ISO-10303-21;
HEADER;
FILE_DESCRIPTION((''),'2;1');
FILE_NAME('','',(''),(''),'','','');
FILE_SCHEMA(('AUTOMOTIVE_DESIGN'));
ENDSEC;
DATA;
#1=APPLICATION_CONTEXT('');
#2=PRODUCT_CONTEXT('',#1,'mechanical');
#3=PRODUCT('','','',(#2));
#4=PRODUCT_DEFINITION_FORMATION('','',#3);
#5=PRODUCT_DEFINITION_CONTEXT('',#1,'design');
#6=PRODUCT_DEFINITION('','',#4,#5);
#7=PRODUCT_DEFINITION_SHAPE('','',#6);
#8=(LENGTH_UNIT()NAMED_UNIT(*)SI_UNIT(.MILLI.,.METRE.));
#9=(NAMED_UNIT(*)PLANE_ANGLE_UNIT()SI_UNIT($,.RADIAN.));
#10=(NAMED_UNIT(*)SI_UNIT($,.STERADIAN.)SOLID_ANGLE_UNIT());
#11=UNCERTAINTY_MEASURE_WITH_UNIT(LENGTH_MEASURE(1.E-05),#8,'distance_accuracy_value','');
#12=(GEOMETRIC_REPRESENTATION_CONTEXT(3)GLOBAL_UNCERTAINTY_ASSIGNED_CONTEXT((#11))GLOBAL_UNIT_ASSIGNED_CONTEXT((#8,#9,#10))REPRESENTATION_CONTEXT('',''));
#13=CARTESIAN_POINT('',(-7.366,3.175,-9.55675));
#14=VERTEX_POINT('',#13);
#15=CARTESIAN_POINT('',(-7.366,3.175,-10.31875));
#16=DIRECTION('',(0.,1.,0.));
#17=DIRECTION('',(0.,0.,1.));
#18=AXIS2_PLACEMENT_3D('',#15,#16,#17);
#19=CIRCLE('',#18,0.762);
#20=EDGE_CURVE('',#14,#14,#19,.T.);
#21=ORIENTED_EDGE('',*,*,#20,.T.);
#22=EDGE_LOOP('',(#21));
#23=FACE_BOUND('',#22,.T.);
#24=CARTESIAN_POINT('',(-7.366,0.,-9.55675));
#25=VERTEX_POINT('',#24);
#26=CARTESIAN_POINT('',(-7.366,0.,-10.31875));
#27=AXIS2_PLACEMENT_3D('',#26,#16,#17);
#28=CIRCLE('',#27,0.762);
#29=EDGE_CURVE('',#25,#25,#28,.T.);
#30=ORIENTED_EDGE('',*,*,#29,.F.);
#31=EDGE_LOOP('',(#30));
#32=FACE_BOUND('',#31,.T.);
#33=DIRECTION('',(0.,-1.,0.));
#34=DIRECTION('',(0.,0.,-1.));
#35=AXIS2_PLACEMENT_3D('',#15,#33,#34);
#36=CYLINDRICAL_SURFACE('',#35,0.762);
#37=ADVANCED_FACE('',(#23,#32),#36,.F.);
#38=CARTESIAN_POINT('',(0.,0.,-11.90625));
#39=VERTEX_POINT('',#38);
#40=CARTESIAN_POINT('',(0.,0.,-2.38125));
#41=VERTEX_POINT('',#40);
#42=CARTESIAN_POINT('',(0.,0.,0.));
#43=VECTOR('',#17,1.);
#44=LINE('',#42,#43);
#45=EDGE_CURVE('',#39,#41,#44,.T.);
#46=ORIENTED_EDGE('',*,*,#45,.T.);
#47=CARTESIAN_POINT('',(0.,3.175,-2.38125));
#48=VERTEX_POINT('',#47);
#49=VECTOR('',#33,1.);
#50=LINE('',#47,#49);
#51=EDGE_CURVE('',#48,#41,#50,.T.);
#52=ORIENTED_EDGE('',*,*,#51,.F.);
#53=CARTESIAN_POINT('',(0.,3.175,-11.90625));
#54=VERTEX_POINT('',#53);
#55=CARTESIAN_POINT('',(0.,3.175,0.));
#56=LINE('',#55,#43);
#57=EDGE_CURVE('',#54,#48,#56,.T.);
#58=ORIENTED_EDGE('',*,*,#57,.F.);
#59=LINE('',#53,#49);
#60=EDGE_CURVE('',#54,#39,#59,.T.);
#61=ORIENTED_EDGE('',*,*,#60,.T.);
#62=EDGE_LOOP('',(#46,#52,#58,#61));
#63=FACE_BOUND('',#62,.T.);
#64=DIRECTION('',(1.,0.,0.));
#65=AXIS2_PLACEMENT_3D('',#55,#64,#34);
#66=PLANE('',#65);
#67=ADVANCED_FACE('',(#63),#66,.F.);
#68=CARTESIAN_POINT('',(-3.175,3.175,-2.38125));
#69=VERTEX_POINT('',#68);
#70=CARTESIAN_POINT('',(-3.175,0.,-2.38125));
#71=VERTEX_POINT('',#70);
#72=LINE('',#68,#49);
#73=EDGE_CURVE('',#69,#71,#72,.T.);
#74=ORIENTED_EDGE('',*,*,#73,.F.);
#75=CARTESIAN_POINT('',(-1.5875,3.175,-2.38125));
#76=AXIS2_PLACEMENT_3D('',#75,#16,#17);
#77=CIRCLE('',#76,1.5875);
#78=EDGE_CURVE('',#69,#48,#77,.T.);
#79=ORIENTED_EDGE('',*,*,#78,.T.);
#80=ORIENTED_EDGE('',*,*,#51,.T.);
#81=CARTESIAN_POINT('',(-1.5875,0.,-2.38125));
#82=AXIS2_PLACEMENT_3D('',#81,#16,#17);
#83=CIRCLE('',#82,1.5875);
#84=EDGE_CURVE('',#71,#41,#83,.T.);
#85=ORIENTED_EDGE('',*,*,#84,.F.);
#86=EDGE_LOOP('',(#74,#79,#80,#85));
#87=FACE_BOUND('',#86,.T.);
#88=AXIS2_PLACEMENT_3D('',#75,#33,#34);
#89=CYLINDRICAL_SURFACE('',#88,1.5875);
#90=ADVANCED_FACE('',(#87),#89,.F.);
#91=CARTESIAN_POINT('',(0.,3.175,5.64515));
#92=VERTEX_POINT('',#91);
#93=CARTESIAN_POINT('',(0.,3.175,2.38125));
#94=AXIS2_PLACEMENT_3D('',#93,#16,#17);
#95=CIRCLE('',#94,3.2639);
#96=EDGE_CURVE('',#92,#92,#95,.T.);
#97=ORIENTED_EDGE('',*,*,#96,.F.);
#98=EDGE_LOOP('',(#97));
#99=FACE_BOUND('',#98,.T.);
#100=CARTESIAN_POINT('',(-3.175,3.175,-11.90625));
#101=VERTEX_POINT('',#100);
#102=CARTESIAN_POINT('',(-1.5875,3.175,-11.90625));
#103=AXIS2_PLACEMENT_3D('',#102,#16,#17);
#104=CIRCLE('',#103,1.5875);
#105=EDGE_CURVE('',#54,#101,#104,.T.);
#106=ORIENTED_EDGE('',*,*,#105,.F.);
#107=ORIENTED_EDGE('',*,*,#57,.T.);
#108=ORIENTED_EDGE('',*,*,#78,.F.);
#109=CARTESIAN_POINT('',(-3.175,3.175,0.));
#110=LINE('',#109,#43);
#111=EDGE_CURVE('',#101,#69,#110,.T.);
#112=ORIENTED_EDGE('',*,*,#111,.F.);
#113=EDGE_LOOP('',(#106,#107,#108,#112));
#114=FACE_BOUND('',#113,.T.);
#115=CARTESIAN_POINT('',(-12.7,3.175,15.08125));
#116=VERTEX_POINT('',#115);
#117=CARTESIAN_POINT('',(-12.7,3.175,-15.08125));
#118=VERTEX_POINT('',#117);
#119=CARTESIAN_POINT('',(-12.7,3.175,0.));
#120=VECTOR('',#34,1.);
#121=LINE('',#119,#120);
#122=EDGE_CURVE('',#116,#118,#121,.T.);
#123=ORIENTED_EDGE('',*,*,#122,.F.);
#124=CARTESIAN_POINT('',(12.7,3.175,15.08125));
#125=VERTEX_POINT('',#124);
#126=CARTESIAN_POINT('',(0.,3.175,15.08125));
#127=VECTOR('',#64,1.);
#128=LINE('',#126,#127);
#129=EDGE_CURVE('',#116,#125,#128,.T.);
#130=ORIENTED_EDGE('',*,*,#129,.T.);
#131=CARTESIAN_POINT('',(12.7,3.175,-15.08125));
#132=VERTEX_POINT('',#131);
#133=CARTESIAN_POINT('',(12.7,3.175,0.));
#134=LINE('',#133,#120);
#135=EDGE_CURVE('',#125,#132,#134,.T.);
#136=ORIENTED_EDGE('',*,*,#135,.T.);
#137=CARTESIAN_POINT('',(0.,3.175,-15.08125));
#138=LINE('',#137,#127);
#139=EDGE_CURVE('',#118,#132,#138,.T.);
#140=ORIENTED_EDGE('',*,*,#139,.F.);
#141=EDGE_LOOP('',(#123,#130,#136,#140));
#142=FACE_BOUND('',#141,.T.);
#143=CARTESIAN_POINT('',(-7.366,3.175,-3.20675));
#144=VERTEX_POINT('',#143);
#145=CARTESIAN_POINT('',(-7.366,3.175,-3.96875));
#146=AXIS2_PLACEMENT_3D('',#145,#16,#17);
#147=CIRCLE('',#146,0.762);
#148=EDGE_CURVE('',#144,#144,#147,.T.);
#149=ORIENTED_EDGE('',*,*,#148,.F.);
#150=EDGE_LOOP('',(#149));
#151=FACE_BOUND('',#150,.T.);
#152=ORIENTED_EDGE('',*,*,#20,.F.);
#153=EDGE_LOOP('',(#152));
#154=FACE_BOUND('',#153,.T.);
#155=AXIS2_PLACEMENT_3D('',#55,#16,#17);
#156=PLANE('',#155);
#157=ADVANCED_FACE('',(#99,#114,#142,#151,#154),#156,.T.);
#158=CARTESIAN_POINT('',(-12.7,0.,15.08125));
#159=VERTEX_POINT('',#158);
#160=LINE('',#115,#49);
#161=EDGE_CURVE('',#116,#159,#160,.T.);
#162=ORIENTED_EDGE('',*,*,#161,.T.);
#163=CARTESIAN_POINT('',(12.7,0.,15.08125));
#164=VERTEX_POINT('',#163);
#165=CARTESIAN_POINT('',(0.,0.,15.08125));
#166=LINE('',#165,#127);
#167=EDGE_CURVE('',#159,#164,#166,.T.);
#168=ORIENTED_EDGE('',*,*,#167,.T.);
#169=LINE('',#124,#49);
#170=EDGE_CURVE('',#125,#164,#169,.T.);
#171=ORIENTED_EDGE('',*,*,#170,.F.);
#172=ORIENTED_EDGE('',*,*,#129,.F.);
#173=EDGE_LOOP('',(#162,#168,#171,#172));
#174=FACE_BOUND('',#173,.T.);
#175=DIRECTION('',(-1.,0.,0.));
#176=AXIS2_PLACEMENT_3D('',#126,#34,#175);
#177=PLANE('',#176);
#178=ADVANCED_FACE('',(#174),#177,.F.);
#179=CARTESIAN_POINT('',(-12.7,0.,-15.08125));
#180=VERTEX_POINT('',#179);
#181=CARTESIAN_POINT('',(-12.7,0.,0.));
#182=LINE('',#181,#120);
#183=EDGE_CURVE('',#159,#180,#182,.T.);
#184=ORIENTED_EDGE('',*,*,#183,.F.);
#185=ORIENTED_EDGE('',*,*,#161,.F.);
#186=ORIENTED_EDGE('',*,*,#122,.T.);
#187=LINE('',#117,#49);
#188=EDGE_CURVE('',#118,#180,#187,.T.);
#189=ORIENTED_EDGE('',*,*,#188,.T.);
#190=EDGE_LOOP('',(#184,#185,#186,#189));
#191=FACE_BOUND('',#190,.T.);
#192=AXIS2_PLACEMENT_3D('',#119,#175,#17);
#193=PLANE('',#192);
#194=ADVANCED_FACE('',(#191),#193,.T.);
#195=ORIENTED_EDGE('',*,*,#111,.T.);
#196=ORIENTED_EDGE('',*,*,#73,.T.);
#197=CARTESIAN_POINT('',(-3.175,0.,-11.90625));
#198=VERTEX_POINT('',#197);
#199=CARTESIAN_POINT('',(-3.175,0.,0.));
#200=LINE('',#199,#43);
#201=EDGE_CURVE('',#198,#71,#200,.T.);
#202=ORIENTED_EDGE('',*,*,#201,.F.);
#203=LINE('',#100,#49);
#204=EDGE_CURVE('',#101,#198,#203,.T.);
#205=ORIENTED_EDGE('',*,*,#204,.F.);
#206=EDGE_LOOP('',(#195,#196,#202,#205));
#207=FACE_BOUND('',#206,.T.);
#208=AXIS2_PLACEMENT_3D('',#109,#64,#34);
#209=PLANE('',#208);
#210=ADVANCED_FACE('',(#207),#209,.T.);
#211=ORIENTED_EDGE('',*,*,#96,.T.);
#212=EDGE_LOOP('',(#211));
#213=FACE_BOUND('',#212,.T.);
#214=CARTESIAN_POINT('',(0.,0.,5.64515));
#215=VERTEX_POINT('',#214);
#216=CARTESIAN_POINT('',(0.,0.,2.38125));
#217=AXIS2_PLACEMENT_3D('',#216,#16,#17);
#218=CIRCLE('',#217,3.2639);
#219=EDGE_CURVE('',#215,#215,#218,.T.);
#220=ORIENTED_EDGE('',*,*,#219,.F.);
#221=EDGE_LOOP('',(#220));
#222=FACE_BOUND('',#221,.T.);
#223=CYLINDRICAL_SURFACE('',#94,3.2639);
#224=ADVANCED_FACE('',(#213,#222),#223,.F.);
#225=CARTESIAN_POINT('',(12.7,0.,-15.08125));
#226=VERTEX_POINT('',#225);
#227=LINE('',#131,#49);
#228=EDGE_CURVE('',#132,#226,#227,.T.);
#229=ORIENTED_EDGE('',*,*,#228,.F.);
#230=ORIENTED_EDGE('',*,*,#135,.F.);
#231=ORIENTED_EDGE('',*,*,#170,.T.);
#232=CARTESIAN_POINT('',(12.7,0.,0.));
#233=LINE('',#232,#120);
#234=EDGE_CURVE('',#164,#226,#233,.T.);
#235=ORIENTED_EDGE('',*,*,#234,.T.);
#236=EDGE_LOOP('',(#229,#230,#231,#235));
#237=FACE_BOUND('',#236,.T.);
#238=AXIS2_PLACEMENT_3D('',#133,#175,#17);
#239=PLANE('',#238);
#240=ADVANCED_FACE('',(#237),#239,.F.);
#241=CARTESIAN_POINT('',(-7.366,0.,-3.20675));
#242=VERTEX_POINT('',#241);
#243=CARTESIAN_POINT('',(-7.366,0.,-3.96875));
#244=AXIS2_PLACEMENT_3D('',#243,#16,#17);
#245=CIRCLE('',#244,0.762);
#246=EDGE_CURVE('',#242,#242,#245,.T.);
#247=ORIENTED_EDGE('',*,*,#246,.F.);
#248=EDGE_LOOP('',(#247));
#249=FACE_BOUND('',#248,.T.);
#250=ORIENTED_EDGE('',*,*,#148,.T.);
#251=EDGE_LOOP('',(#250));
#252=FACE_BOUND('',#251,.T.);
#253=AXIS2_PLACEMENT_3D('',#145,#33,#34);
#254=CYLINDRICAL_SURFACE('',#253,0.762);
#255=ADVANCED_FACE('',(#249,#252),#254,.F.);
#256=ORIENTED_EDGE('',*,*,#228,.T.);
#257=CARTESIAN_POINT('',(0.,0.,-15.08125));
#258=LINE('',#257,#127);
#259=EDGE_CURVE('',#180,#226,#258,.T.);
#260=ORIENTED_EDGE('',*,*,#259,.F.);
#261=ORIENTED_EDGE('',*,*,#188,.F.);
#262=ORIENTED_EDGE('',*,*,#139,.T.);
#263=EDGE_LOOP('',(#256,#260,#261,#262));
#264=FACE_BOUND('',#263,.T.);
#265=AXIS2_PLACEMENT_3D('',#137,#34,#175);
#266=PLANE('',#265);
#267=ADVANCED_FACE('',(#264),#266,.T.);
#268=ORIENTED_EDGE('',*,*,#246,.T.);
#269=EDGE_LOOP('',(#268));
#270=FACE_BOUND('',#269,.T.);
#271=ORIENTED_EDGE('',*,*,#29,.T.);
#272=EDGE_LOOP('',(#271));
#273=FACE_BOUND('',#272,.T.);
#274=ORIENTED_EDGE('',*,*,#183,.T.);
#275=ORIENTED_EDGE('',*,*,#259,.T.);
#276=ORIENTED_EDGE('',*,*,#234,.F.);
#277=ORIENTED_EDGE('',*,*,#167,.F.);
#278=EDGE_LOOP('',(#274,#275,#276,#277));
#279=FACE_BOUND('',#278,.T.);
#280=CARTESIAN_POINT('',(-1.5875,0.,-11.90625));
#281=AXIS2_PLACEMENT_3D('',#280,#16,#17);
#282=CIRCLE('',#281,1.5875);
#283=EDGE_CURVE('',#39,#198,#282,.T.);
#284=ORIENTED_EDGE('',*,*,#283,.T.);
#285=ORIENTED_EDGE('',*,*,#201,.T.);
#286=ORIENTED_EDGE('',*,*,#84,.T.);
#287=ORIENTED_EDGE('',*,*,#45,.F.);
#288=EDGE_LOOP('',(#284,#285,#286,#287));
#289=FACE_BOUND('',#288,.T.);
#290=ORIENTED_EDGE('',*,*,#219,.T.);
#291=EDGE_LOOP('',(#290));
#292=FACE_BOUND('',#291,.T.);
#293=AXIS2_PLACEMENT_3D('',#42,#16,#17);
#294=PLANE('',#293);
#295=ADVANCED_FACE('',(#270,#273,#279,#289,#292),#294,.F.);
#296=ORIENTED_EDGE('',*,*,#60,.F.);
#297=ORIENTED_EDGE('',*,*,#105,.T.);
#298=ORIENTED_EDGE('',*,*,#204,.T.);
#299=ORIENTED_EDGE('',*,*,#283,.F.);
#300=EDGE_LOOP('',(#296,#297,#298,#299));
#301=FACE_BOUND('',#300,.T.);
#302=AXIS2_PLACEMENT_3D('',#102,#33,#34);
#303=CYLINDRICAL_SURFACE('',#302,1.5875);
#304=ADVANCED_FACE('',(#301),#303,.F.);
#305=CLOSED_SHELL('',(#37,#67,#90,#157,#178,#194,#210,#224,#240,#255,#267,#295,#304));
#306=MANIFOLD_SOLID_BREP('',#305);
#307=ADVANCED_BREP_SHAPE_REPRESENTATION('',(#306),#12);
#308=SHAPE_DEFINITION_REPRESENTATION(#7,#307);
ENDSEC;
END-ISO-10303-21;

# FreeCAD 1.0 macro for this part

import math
import FreeCAD as App
import Part
import Sketcher
from FreeCAD import Vector
Q = App.Units.Quantity


def add_polygon(sketch, points):
    """Adds a closed chain of lines whose ends are joined by coincident constraints."""
    first, n = sketch.GeometryCount, len(points)
    for a, b in zip(points, points[1:] + points[:1]):
        sketch.addGeometry(Part.LineSegment(App.Vector(*a, 0), App.Vector(*b, 0)), False)
    for i in range(n):
        sketch.addConstraint(Sketcher.Constraint("Coincident", first + i, 2, first + (i + 1) % n, 1))

doc = App.newDocument("Part")
body = doc.addObject("PartDesign::Body", "Body")

# Sketch on XZ plane
sketch1 = body.newObject("Sketcher::SketchObject", "Sketch")
sketch1.AttachmentSupport = (doc.getObject("XZ_Plane"), [""])
sketch1.MapMode = "FlatFace"
add_polygon(sketch1, [(-12.7, -15.1), (-12.7, 15.1), (12.7, 15.1), (12.7, -15.1)])  # lines 0-3
sketch1.addGeometry(Part.Circle(Vector(-7.4, -4, 0), Vector(0, 0, 1), 0.8), False)  # 4
sketch1.addGeometry(Part.ArcOfCircle(Part.Circle(Vector(-1.6, -11.9, 0), Vector(0, 0, 1), 1.6), math.radians(180), math.radians(360)), False)  # 5
sketch1.addGeometry(Part.LineSegment(Vector(0, -11.9, 0), Vector(0, -2.4, 0)), False)  # 6
sketch1.addGeometry(Part.ArcOfCircle(Part.Circle(Vector(-1.6, -2.4, 0), Vector(0, 0, 1), 1.6), math.radians(0), math.radians(180)), False)  # 7
sketch1.addGeometry(Part.LineSegment(Vector(-3.2, -2.4, 0), Vector(-3.2, -11.9, 0)), False)  # 8
sketch1.addGeometry(Part.Circle(Vector(-7.4, -10.3, 0), Vector(0, 0, 1), 0.8), False)  # 9
sketch1.addConstraint(Sketcher.Constraint("Tangent", 5, 2, 6, 1))
sketch1.addConstraint(Sketcher.Constraint("Tangent", 6, 2, 7, 1))
sketch1.addConstraint(Sketcher.Constraint("Tangent", 7, 2, 8, 1))
sketch1.addConstraint(Sketcher.Constraint("Tangent", 8, 2, 5, 1))
sketch1.addConstraint(Sketcher.Constraint("Vertical", 0))
sketch1.addConstraint(Sketcher.Constraint("Horizontal", 1))
sketch1.addConstraint(Sketcher.Constraint("Vertical", 2))
sketch1.addConstraint(Sketcher.Constraint("Horizontal", 3))
sketch1.addConstraint(Sketcher.Constraint("Vertical", 6))
sketch1.addConstraint(Sketcher.Constraint("Vertical", 8))
sketch1.addConstraint(Sketcher.Constraint("Equal", 4, 9))
sketch1.addConstraint(Sketcher.Constraint("Symmetric", 0, 2, 2, 2, -1, 1))
sketch1.addConstraint(Sketcher.Constraint("PointOnObject", 5, 2, -2))
sketch1.addConstraint(Sketcher.Constraint("Vertical", 4, 3, 9, 3))
sketch1.addConstraint(Sketcher.Constraint("Diameter", 4, Q("0.06 in")))
sketch1.addConstraint(Sketcher.Constraint("DistanceX", 1, 1, 1, 2, Q("1 in")))
sketch1.addConstraint(Sketcher.Constraint("Radius", 5, Q("0.0625 in")))
sketch1.addConstraint(Sketcher.Constraint("DistanceY", 9, 3, 0, 2, Q("1 in")))
sketch1.addConstraint(Sketcher.Constraint("DistanceY", 2, 2, 7, 3, Q("0.5 in")))
sketch1.addConstraint(Sketcher.Constraint("DistanceY", 0, 1, 0, 2, Q("1.1875 in")))
sketch1.addConstraint(Sketcher.Constraint("DistanceY", 6, 1, 6, 2, Q("0.375 in")))
sketch1.addConstraint(Sketcher.Constraint("DistanceX", 4, 3, -1, 1, Q("0.29 in")))
sketch1.addConstraint(Sketcher.Constraint("DistanceY", 9, 3, 4, 3, Q("0.25 in")))
pad1 = body.newObject("PartDesign::Pad", "Pad")
pad1.Profile = sketch1
pad1.Length = Q("0.125 in")
pad1.Reversed = True

# Sketch on XZ plane
sketch2 = body.newObject("Sketcher::SketchObject", "Sketch001")
sketch2.AttachmentSupport = (doc.getObject("XZ_Plane"), [""])
sketch2.MapMode = "FlatFace"
sketch2.AttachmentOffset = App.Placement(Vector(0, 0, -0.125 * 25.4), App.Rotation())
sketch2.addGeometry(Part.Circle(Vector(0, 2.4, 0), Vector(0, 0, 1), 3.3), False)
sketch2.addConstraint(Sketcher.Constraint("PointOnObject", 0, 3, -2))
sketch2.addConstraint(Sketcher.Constraint("Diameter", 0, Q("0.257 in")))
sketch2.addConstraint(Sketcher.Constraint("DistanceY", -1, 1, 0, 3, Q("0.09375 in")))
doc.recompute()
hole = body.newObject("PartDesign::Hole", "Hole")
hole.Profile = sketch2
hole.ThreadType = "None"
hole.Diameter = Q("0.257 in")
hole.DepthType = "Dimension"
hole.Depth = Q("0.25 in")
hole.DrillPoint = "Angled"
hole.DrillPointAngle = 118
hole.Reversed = True

doc.recompute()
